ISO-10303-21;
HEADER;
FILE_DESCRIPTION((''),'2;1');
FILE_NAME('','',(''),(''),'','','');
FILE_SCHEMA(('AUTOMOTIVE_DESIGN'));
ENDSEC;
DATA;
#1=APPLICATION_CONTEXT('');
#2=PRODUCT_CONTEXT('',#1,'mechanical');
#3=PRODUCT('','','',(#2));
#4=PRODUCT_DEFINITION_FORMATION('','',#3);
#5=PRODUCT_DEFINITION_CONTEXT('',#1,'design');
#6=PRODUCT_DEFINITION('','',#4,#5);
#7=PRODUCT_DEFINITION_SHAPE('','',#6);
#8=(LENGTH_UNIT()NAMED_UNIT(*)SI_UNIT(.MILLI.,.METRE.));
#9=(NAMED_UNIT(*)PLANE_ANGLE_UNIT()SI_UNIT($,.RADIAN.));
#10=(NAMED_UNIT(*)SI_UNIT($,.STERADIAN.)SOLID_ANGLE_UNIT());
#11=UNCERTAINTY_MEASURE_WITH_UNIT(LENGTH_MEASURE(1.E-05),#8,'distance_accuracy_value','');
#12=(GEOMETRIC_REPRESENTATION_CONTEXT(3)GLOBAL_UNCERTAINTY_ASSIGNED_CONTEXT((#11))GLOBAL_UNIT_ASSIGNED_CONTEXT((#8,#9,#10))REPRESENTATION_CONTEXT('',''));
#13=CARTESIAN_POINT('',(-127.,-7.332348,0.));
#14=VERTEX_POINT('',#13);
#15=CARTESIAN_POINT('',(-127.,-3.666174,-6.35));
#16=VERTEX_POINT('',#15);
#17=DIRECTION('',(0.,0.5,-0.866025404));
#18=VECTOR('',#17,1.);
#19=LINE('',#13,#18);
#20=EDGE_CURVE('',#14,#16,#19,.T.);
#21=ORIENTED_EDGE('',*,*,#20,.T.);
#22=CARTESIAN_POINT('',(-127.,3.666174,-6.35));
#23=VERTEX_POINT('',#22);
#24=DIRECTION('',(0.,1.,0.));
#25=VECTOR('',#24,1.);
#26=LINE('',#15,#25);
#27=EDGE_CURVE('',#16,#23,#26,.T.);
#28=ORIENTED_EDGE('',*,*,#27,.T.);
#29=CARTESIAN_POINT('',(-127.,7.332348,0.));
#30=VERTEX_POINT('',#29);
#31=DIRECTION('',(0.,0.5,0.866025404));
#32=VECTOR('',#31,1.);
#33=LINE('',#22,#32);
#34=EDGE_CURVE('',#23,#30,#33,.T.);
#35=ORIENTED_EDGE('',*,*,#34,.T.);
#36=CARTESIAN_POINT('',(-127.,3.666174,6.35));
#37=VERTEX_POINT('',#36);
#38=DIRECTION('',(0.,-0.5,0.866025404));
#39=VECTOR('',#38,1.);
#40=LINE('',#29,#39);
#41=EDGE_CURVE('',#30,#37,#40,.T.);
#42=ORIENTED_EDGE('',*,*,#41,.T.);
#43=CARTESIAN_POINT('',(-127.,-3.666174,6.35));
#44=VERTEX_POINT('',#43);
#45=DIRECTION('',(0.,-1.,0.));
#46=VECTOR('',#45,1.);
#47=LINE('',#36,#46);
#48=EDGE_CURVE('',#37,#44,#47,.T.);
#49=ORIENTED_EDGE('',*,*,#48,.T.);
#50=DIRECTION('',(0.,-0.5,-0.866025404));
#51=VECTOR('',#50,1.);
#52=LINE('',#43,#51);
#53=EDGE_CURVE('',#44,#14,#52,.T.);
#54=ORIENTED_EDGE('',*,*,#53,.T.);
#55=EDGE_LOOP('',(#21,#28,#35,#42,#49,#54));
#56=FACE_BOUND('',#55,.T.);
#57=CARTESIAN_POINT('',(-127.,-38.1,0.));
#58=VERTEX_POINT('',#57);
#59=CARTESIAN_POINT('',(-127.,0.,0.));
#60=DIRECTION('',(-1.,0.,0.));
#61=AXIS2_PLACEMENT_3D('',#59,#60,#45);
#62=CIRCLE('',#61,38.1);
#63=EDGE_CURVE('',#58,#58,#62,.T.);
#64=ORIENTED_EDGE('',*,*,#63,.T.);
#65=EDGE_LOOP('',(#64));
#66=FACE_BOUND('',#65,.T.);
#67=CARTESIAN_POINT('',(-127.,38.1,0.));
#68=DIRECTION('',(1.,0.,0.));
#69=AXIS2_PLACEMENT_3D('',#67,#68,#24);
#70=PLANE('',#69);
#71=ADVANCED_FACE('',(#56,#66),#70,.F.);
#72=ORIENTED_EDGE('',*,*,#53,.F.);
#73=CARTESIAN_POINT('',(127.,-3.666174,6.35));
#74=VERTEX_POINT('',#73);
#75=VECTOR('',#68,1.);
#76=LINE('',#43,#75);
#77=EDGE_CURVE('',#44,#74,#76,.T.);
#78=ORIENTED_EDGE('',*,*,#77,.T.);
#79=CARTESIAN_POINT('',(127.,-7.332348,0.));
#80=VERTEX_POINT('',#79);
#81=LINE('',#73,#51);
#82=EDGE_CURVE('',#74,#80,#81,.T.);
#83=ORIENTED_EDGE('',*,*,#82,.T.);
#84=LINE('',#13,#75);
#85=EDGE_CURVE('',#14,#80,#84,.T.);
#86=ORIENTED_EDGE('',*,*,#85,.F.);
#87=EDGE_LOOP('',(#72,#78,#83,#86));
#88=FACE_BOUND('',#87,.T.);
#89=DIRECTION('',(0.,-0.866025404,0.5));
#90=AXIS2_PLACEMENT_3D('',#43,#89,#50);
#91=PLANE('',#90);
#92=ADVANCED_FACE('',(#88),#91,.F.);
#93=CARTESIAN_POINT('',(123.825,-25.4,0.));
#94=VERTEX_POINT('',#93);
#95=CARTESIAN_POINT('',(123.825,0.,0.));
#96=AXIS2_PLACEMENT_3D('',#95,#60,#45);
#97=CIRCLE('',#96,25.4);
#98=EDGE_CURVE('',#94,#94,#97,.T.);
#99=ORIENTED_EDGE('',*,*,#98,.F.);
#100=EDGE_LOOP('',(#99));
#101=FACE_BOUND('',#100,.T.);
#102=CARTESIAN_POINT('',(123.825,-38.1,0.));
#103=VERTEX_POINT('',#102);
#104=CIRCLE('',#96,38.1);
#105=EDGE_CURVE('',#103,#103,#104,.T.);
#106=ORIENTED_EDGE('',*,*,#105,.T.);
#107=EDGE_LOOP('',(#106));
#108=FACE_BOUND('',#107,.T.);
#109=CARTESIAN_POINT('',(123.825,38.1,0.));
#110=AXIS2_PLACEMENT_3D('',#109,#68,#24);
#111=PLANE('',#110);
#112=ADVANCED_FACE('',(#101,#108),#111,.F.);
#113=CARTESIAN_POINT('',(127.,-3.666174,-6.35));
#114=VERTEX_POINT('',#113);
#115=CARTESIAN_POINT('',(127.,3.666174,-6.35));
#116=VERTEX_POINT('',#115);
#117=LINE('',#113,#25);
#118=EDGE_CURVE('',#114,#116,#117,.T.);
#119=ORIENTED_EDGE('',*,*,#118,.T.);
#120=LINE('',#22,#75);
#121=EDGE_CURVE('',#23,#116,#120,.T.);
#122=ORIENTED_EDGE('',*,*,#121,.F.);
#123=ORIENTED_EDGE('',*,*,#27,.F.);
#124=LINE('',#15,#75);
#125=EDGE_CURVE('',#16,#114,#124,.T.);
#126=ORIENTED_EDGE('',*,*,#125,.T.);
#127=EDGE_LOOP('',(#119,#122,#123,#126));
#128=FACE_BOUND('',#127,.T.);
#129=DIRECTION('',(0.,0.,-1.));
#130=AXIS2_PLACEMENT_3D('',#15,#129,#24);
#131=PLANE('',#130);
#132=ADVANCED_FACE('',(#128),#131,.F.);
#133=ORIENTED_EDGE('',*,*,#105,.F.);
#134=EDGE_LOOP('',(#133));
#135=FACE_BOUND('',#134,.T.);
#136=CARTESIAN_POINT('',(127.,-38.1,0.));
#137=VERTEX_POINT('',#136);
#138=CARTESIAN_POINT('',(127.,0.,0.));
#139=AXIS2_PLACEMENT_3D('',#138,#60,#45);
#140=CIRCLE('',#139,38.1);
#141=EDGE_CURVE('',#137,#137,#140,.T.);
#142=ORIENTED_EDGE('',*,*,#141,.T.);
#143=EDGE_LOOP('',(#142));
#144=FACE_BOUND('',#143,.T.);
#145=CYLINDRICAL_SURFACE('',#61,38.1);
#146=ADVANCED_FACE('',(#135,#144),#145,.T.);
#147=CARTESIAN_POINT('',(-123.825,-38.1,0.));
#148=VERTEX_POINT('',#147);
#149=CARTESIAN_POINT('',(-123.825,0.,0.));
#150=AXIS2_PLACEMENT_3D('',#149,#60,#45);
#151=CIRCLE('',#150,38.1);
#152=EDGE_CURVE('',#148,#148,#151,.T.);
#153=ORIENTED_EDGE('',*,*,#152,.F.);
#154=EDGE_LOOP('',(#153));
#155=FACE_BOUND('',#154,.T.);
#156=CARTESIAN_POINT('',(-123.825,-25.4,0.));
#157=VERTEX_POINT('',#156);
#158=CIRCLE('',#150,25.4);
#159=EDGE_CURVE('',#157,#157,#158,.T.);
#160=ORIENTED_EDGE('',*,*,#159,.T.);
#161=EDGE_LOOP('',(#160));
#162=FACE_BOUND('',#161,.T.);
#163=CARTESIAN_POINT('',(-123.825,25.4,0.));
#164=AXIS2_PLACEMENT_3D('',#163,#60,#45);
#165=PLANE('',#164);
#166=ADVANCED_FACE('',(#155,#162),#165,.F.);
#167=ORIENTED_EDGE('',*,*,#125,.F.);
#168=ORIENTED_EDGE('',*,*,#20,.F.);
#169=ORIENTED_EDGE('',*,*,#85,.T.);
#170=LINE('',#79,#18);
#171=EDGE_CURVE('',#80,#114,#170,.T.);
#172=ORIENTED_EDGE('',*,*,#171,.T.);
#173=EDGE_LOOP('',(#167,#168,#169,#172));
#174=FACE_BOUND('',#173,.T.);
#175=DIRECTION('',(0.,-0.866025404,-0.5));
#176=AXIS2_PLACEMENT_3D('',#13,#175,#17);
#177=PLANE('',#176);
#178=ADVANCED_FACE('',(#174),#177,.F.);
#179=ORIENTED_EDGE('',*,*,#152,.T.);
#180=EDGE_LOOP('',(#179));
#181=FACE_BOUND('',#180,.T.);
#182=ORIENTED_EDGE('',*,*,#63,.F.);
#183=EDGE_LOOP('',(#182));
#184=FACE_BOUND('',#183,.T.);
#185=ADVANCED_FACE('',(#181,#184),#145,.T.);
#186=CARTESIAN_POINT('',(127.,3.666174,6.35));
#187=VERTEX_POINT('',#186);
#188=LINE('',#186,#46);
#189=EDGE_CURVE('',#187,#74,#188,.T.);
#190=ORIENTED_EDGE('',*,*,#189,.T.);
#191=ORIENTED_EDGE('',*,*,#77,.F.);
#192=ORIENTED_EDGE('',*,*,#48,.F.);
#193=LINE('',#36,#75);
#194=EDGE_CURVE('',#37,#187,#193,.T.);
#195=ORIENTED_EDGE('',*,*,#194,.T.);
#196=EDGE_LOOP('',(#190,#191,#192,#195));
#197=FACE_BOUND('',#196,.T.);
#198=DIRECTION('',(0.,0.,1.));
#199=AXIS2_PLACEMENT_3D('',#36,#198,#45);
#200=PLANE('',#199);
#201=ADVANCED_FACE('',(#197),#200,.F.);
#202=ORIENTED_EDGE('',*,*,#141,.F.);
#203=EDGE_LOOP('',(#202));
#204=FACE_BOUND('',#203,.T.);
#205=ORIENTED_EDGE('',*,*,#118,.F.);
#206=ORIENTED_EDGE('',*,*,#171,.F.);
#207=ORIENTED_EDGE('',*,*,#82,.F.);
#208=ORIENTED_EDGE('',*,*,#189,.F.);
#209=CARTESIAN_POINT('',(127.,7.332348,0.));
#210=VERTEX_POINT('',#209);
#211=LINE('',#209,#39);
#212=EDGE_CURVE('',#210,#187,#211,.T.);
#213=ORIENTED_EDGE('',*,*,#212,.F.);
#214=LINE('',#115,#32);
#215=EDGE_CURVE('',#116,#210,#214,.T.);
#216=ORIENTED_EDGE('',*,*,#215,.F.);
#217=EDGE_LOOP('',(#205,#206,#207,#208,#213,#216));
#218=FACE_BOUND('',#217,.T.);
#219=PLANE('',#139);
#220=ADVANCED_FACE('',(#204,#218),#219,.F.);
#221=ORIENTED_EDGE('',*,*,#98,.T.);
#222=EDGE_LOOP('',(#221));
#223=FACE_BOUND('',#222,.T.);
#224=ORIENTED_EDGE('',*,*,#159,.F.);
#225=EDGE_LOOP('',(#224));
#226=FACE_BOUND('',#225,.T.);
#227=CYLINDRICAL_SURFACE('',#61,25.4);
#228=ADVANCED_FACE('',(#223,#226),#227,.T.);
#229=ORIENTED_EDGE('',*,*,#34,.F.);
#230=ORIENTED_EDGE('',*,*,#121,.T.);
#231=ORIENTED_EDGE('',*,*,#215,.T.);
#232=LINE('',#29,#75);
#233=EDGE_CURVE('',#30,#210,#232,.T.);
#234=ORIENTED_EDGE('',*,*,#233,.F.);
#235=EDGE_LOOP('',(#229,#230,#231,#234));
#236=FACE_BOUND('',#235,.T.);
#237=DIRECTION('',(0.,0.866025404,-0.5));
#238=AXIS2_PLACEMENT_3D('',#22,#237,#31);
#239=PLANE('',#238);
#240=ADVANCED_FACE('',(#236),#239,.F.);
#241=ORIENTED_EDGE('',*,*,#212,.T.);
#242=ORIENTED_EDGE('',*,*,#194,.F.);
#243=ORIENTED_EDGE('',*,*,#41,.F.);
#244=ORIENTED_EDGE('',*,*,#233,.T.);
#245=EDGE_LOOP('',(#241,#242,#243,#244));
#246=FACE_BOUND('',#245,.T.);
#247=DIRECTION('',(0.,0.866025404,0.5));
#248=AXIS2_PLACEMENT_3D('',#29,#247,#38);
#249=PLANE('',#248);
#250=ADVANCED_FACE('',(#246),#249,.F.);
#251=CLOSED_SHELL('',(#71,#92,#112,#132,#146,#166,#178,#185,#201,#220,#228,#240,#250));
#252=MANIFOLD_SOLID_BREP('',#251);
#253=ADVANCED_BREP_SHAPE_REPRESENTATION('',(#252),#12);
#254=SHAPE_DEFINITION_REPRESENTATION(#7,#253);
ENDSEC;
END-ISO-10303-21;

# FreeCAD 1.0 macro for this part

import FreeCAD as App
import Part
import Sketcher

V = App.Vector
Q = App.Units.Quantity


def add_polygon(sketch, points):
    """Adds a closed chain of lines whose ends are joined by coincident constraints."""
    first, n = sketch.GeometryCount, len(points)
    for a, b in zip(points, points[1:] + points[:1]):
        sketch.addGeometry(Part.LineSegment(App.Vector(*a, 0), App.Vector(*b, 0)), False)
    for i in range(n):
        sketch.addConstraint(Sketcher.Constraint("Coincident", first + i, 2, first + (i + 1) % n, 1))

doc = App.newDocument("Part")
body = doc.addObject("PartDesign::Body", "Body")

# Sketch on XY plane
sketch1 = doc.addObject("Sketcher::SketchObject", "Sketch")
body.addObject(sketch1)
sketch1.AttachmentSupport = (doc.XY_Plane, [""])
sketch1.MapMode = "FlatFace"
add_polygon(sketch1, [(-127, 38.1), (-127, 0), (127, 0), (127, 38.1), (123.8, 38.1), (123.8, 25.4), (-123.8, 25.4), (-123.8, 38.1)])  # lines 0-7
sketch1.addConstraint([
    Sketcher.Constraint("Vertical", 0),
    Sketcher.Constraint("Horizontal", 1),
    Sketcher.Constraint("Vertical", 2),
    Sketcher.Constraint("Horizontal", 3),
    Sketcher.Constraint("Vertical", 4),
    Sketcher.Constraint("Horizontal", 5),
    Sketcher.Constraint("Vertical", 6),
    Sketcher.Constraint("Horizontal", 7),
    Sketcher.Constraint("Symmetric", 0, 2, 1, 2, -1, 1),
    Sketcher.Constraint("Symmetric", 3, 2, 6, 2, -2),
    Sketcher.Constraint("DistanceX", 1, 1, 1, 2, Q("10 in")),
    Sketcher.Constraint("DistanceY", 0, 2, 0, 1, Q("1.5 in")),
    Sketcher.Constraint("DistanceY", 4, 2, 4, 1, Q("0.5 in")),
    Sketcher.Constraint("DistanceX", 5, 2, 5, 1, Q("9.75 in")),
])
revolution = doc.addObject("PartDesign::Revolution", "Revolution")
body.addObject(revolution)
revolution.Profile = sketch1
revolution.ReferenceAxis = (sketch1, ["H_Axis"])
revolution.Angle = 360

# Sketch on YZ plane
sketch2 = doc.addObject("Sketcher::SketchObject", "Sketch001")
body.addObject(sketch2)
sketch2.AttachmentSupport = (doc.YZ_Plane, [""])
sketch2.MapMode = "FlatFace"
sketch2.AttachmentOffset = App.Placement(V(0, 0, 5 * 25.4), App.Rotation())
add_polygon(sketch2, [(7, 0), (4, 6), (-4, 6), (-7, 0), (-4, -6), (4, -6)])  # lines 0-5
sketch2.addConstraint([
    Sketcher.Constraint("Horizontal", 1),
    Sketcher.Constraint("Horizontal", 4),
    Sketcher.Constraint("Symmetric", 0, 2, 3, 2, -1, 1),
    Sketcher.Constraint("Symmetric", 2, 2, 5, 2, -1, 1),
    Sketcher.Constraint("PointOnObject", 2, 2, -1),
    Sketcher.Constraint("Parallel", 2, 5),
    Sketcher.Constraint("Vertical", 1, 2, 3, 2),
    Sketcher.Constraint("Angle", 0, Q("120 deg")),
    Sketcher.Constraint("DistanceY", 3, 2, 1, 2, Q("0.5 in")),
    Sketcher.Constraint("DistanceX", 1, 2, 1, 1, 7.332348),
])
pocket1 = doc.addObject("PartDesign::Pocket", "Pocket")
body.addObject(pocket1)
pocket1.Profile = sketch2
pocket1.Type = "ThroughAll"

doc.recompute()
